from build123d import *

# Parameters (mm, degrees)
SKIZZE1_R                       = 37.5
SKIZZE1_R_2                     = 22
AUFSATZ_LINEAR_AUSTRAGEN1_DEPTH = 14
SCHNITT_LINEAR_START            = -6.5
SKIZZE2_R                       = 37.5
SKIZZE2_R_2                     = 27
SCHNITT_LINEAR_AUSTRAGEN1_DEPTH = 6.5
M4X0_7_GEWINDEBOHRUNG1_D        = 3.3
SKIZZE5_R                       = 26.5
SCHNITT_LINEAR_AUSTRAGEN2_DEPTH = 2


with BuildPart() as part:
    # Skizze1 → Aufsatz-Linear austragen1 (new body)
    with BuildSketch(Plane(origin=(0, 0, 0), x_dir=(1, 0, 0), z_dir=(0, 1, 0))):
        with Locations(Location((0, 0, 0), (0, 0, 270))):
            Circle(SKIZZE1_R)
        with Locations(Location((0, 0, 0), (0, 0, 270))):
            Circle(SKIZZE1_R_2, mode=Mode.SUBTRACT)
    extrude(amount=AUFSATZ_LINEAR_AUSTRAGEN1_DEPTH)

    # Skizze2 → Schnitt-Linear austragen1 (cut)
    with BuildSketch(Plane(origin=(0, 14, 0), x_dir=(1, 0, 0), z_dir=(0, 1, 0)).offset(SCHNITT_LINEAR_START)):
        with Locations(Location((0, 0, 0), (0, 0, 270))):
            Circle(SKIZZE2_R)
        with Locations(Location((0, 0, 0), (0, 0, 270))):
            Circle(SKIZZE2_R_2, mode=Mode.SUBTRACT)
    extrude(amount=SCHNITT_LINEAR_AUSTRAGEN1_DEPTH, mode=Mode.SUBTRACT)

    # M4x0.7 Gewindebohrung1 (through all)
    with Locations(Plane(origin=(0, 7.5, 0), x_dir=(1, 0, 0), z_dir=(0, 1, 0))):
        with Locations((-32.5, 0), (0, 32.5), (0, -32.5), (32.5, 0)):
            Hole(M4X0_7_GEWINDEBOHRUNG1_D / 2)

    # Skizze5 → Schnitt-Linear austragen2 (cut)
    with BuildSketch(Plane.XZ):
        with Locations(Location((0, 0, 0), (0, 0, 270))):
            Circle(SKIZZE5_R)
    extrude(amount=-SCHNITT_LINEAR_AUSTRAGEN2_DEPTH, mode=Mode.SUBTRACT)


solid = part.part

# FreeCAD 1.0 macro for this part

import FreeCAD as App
import Part
import Sketcher

doc = App.newDocument("Part")
body = doc.addObject("PartDesign::Body", "Body")

# Sketch on XZ plane
sketch1 = body.newObject("Sketcher::SketchObject", "Sketch")
sketch1.AttachmentSupport = (doc.getObject("XZ_Plane"), [""])
sketch1.MapMode = "FlatFace"
sketch1.addGeometry(Part.Circle(App.Vector(0, 0, 0), App.Vector(0, 0, 1), 37.5), False)
sketch1.addGeometry(Part.Circle(App.Vector(0, 0, 0), App.Vector(0, 0, 1), 22), False)
sketch1.addConstraint(Sketcher.Constraint("Coincident", 0, 3, -1, 1))
sketch1.addConstraint(Sketcher.Constraint("Coincident", 1, 3, -1, 1))
sketch1.addConstraint(Sketcher.Constraint("Diameter", 0, 75.0))
sketch1.addConstraint(Sketcher.Constraint("Diameter", 1, 44.0))
pad1 = body.newObject("PartDesign::Pad", "Pad")
pad1.Profile = sketch1
pad1.Length = 14
pad1.Reversed = True

# Sketch on XZ plane
sketch2 = body.newObject("Sketcher::SketchObject", "Sketch001")
sketch2.AttachmentSupport = (doc.getObject("XZ_Plane"), [""])
sketch2.MapMode = "FlatFace"
sketch2.AttachmentOffset = App.Placement(App.Vector(0, 0, -7.5), App.Rotation())
sketch2.addGeometry(Part.Circle(App.Vector(0, 0, 0), App.Vector(0, 0, 1), 37.5), False)
sketch2.addGeometry(Part.Circle(App.Vector(0, 0, 0), App.Vector(0, 0, 1), 27), False)
sketch2.addConstraint(Sketcher.Constraint("Coincident", 0, 3, -1, 1))
sketch2.addConstraint(Sketcher.Constraint("Coincident", 1, 3, -1, 1))
sketch2.addConstraint(Sketcher.Constraint("Diameter", 0, 75.0))
sketch2.addConstraint(Sketcher.Constraint("Diameter", 1, 54.0))
pocket1 = body.newObject("PartDesign::Pocket", "Pocket")
pocket1.Profile = sketch2
pocket1.Length = 6.5

# Sketch on XZ plane
sketch3 = body.newObject("Sketcher::SketchObject", "Sketch002")
sketch3.AttachmentSupport = (doc.getObject("XZ_Plane"), [""])
sketch3.MapMode = "FlatFace"
sketch3.AttachmentOffset = App.Placement(App.Vector(0, 0, -7.5), App.Rotation())
sketch3.addGeometry(Part.Circle(App.Vector(-32.5, 0, 0), App.Vector(0, 0, 1), 1.65), False)
sketch3.addGeometry(Part.Circle(App.Vector(0, -32.5, 0), App.Vector(0, 0, 1), 1.65), False)
sketch3.addGeometry(Part.Circle(App.Vector(0, 32.5, 0), App.Vector(0, 0, 1), 1.65), False)
sketch3.addGeometry(Part.Circle(App.Vector(32.5, 0, 0), App.Vector(0, 0, 1), 1.65), False)
sketch3.addConstraint(Sketcher.Constraint("Equal", 0, 1))
sketch3.addConstraint(Sketcher.Constraint("Equal", 1, 2))
sketch3.addConstraint(Sketcher.Constraint("Equal", 2, 3))
sketch3.addConstraint(Sketcher.Constraint("Symmetric", 1, 3, 2, 3, -1, 1))
sketch3.addConstraint(Sketcher.Constraint("Symmetric", 0, 3, 3, 3, -1, 1))
sketch3.addConstraint(Sketcher.Constraint("PointOnObject", 0, 3, -1))
sketch3.addConstraint(Sketcher.Constraint("PointOnObject", 1, 3, -2))
sketch3.addConstraint(Sketcher.Constraint("Diameter", 0, 3.3))
sketch3.addConstraint(Sketcher.Constraint("DistanceY", 1, 3, 2, 3, 65.0))
sketch3.addConstraint(Sketcher.Constraint("DistanceX", 0, 3, 3, 3, 65.0))
doc.recompute()
hole = body.newObject("PartDesign::Hole", "Hole")
hole.Profile = sketch3
hole.ThreadType = "None"
hole.Diameter = 3.3
hole.DepthType = "ThroughAll"
hole.Reversed = True

# Sketch on XZ plane
sketch4 = body.newObject("Sketcher::SketchObject", "Sketch003")
sketch4.AttachmentSupport = (doc.getObject("XZ_Plane"), [""])
sketch4.MapMode = "FlatFace"
sketch4.addGeometry(Part.Circle(App.Vector(0, 0, 0), App.Vector(0, 0, 1), 26.5), False)
sketch4.addConstraint(Sketcher.Constraint("Coincident", 0, 3, -1, 1))
sketch4.addConstraint(Sketcher.Constraint("Diameter", 0, 53.0))
pocket2 = body.newObject("PartDesign::Pocket", "Pocket001")
pocket2.Profile = sketch4
pocket2.Length = 2

doc.recompute()
